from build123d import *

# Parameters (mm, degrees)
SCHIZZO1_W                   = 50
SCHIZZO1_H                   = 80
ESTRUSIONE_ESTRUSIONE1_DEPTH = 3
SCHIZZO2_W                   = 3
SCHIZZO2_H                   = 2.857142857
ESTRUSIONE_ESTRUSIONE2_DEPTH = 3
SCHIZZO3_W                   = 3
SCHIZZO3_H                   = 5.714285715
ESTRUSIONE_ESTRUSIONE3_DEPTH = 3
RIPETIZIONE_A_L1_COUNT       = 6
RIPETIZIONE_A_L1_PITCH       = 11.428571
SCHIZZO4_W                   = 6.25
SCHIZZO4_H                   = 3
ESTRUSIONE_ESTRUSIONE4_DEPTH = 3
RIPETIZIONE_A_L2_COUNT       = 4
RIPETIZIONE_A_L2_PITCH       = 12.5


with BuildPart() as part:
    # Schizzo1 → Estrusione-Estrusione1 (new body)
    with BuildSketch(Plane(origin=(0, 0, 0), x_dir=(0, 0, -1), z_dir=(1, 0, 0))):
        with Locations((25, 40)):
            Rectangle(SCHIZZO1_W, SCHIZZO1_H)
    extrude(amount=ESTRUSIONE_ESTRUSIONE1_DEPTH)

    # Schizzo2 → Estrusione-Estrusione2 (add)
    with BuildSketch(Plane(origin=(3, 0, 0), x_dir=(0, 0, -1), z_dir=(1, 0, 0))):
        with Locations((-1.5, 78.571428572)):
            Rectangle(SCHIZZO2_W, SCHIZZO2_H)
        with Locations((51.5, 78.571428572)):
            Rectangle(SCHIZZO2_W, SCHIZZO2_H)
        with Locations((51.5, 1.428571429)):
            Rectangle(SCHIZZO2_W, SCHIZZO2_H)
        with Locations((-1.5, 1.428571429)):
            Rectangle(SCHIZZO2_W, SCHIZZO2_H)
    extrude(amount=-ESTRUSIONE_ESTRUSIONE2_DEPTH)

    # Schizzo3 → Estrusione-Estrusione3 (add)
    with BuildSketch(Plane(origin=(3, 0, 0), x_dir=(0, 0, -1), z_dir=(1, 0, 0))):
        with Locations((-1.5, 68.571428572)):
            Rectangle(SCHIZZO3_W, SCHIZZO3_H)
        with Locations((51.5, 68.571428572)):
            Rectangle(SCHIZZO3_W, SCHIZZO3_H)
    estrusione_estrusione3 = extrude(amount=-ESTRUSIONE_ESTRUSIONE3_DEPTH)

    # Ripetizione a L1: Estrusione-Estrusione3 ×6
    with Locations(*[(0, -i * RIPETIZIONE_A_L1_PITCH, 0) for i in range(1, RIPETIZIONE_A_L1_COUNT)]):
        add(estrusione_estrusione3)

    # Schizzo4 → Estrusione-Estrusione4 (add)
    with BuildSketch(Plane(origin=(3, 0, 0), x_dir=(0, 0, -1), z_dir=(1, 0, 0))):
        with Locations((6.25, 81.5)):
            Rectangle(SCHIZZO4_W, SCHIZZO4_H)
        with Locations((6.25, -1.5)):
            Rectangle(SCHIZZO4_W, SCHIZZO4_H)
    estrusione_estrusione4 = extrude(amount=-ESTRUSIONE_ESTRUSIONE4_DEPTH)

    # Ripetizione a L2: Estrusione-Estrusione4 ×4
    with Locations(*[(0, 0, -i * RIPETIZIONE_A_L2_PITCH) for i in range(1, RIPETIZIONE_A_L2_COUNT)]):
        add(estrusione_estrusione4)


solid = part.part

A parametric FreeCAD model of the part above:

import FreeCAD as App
import Part
import Sketcher


def add_polygon(sketch, points):
    """Adds a closed chain of lines whose ends are joined by coincident constraints."""
    first, n = sketch.GeometryCount, len(points)
    for a, b in zip(points, points[1:] + points[:1]):
        sketch.addGeometry(Part.LineSegment(App.Vector(*a, 0), App.Vector(*b, 0)), False)
    for i in range(n):
        sketch.addConstraint(Sketcher.Constraint("Coincident", first + i, 2, first + (i + 1) % n, 1))

doc = App.newDocument("Part")
body = doc.addObject("PartDesign::Body", "Body")

sketch1 = body.newObject("Sketcher::SketchObject", "Sketch")
sketch1.AttachmentSupport = (doc.getObject("YZ_Plane"), [""])
sketch1.MapMode = "FlatFace"
add_polygon(sketch1, [(80, 0), (0, 0), (0, -50), (80, -50)])
sketch1.addConstraint(Sketcher.Constraint("Horizontal", 0))
sketch1.addConstraint(Sketcher.Constraint("Vertical", 1))
sketch1.addConstraint(Sketcher.Constraint("Horizontal", 2))
sketch1.addConstraint(Sketcher.Constraint("Vertical", 3))
sketch1.addConstraint(Sketcher.Constraint("Coincident", 0, 2, -1, 1))
sketch1.addConstraint(Sketcher.Constraint("DistanceX", 0, 2, 0, 1, 80.0))
sketch1.addConstraint(Sketcher.Constraint("DistanceY", 1, 2, 1, 1, 50.0))
pad1 = body.newObject("PartDesign::Pad", "Pad")
pad1.Profile = sketch1
pad1.Length = 3

sketch2 = body.newObject("Sketcher::SketchObject", "Sketch001")
sketch2.AttachmentSupport = (doc.getObject("YZ_Plane"), [""])
sketch2.MapMode = "FlatFace"
sketch2.AttachmentOffset = App.Placement(App.Vector(0, 0, 3), App.Rotation())
add_polygon(sketch2, [(80, 3), (77.1, 3), (77.1, 0), (80, 0)])
add_polygon(sketch2, [(80, -50), (77.1, -50), (77.1, -53), (80, -53)])
add_polygon(sketch2, [(2.9, -50), (0, -50), (0, -53), (2.9, -53)])
add_polygon(sketch2, [(2.9, 3), (0, 3), (0, 0), (2.9, 0)])
sketch2.addConstraint(Sketcher.Constraint("Horizontal", 0))
sketch2.addConstraint(Sketcher.Constraint("Vertical", 1))
sketch2.addConstraint(Sketcher.Constraint("Horizontal", 2))
sketch2.addConstraint(Sketcher.Constraint("Vertical", 3))
sketch2.addConstraint(Sketcher.Constraint("Horizontal", 4))
sketch2.addConstraint(Sketcher.Constraint("Vertical", 5))
sketch2.addConstraint(Sketcher.Constraint("Horizontal", 6))
sketch2.addConstraint(Sketcher.Constraint("Vertical", 7))
sketch2.addConstraint(Sketcher.Constraint("Horizontal", 8))
sketch2.addConstraint(Sketcher.Constraint("Vertical", 9))
sketch2.addConstraint(Sketcher.Constraint("Horizontal", 10))
sketch2.addConstraint(Sketcher.Constraint("Vertical", 11))
sketch2.addConstraint(Sketcher.Constraint("Horizontal", 12))
sketch2.addConstraint(Sketcher.Constraint("Vertical", 13))
sketch2.addConstraint(Sketcher.Constraint("Horizontal", 14))
sketch2.addConstraint(Sketcher.Constraint("Vertical", 15))
sketch2.addConstraint(Sketcher.Constraint("Coincident", 13, 2, -1, 1))
sketch2.addConstraint(Sketcher.Constraint("PointOnObject", 1, 2, -1))
sketch2.addConstraint(Sketcher.Constraint("PointOnObject", 8, 2, -2))
sketch2.addConstraint(Sketcher.Constraint("Horizontal", 7, 2, 8, 2))
sketch2.addConstraint(Sketcher.Constraint("Horizontal", 6, 2, 9, 2))
sketch2.addConstraint(Sketcher.Constraint("Horizontal", 3, 2, 12, 2))
sketch2.addConstraint(Sketcher.Constraint("Vertical", 1, 2, 4, 2))
sketch2.addConstraint(Sketcher.Constraint("Vertical", 3, 2, 6, 2))
sketch2.addConstraint(Sketcher.Constraint("Vertical", 11, 2, 14, 2))
sketch2.addConstraint(Sketcher.Constraint("Equal", 6, 8))
sketch2.addConstraint(Sketcher.Constraint("Equal", 3, 5))
sketch2.addConstraint(Sketcher.Constraint("DistanceY", 1, 2, 1, 1, 3.0))
sketch2.addConstraint(Sketcher.Constraint("DistanceX", -1, 1, 2, 2, 80.0))
sketch2.addConstraint(Sketcher.Constraint("DistanceY", 4, 2, -1, 1, 50.0))
sketch2.addConstraint(Sketcher.Constraint("DistanceX", 0, 2, 0, 1, 2.857143))
pad2 = body.newObject("PartDesign::Pad", "Pad001")
pad2.Profile = sketch2
pad2.Length = 3
pad2.Reversed = True

sketch3 = body.newObject("Sketcher::SketchObject", "Sketch002")
sketch3.AttachmentSupport = (doc.getObject("YZ_Plane"), [""])
sketch3.MapMode = "FlatFace"
sketch3.AttachmentOffset = App.Placement(App.Vector(0, 0, 3), App.Rotation())
add_polygon(sketch3, [(71.4, 3), (65.7, 3), (65.7, 0), (71.4, 0)])
add_polygon(sketch3, [(71.4, -50), (65.7, -50), (65.7, -53), (71.4, -53)])
sketch3.addConstraint(Sketcher.Constraint("Horizontal", 0))
sketch3.addConstraint(Sketcher.Constraint("Vertical", 1))
sketch3.addConstraint(Sketcher.Constraint("Horizontal", 2))
sketch3.addConstraint(Sketcher.Constraint("Vertical", 3))
sketch3.addConstraint(Sketcher.Constraint("Horizontal", 4))
sketch3.addConstraint(Sketcher.Constraint("Vertical", 5))
sketch3.addConstraint(Sketcher.Constraint("Horizontal", 6))
sketch3.addConstraint(Sketcher.Constraint("Vertical", 7))
sketch3.addConstraint(Sketcher.Constraint("PointOnObject", 1, 2, -1))
sketch3.addConstraint(Sketcher.Constraint("Vertical", 1, 2, 4, 2))
sketch3.addConstraint(Sketcher.Constraint("Vertical", 3, 2, 6, 2))
sketch3.addConstraint(Sketcher.Constraint("Equal", 3, 5))
sketch3.addConstraint(Sketcher.Constraint("DistanceY", 1, 2, 1, 1, 3.0))
sketch3.addConstraint(Sketcher.Constraint("DistanceY", 4, 2, -1, 1, 50.0))
sketch3.addConstraint(Sketcher.Constraint("DistanceX", 0, 2, 0, 1, 5.714286))
sketch3.addConstraint(Sketcher.Constraint("DistanceX", -1, 1, 2, 2, 71.428571))
pad3 = body.newObject("PartDesign::Pad", "Pad002")
pad3.Profile = sketch3
pad3.Length = 3
pad3.Reversed = True
doc.recompute()

linearpattern = body.newObject("PartDesign::LinearPattern", "LinearPattern")
linearpattern.Originals = [pad3]
linearpattern.Direction = (doc.getObject("Y_Axis"), [""])
linearpattern.Mode = "offset"
linearpattern.Offset = 11.428571
linearpattern.Occurrences = 6
linearpattern.Reversed = True
body.Tip = linearpattern

sketch4 = body.newObject("Sketcher::SketchObject", "Sketch003")
sketch4.AttachmentSupport = (doc.getObject("YZ_Plane"), [""])
sketch4.MapMode = "FlatFace"
sketch4.AttachmentOffset = App.Placement(App.Vector(0, 0, 3), App.Rotation())
add_polygon(sketch4, [(83, -3.1), (80, -3.1), (80, -9.4), (83, -9.4)])
add_polygon(sketch4, [(0, -3.1), (-3, -3.1), (-3, -9.4), (0, -9.4)])
sketch4.addConstraint(Sketcher.Constraint("Horizontal", 0))
sketch4.addConstraint(Sketcher.Constraint("Vertical", 1))
sketch4.addConstraint(Sketcher.Constraint("Horizontal", 2))
sketch4.addConstraint(Sketcher.Constraint("Vertical", 3))
sketch4.addConstraint(Sketcher.Constraint("Horizontal", 4))
sketch4.addConstraint(Sketcher.Constraint("Vertical", 5))
sketch4.addConstraint(Sketcher.Constraint("Horizontal", 6))
sketch4.addConstraint(Sketcher.Constraint("Vertical", 7))
sketch4.addConstraint(Sketcher.Constraint("PointOnObject", 6, 2, -2))
sketch4.addConstraint(Sketcher.Constraint("Horizontal", 3, 2, 4, 2))
sketch4.addConstraint(Sketcher.Constraint("Horizontal", 2, 2, 5, 2))
sketch4.addConstraint(Sketcher.Constraint("Equal", 2, 4))
sketch4.addConstraint(Sketcher.Constraint("DistanceX", 0, 2, 0, 1, 3.0))
sketch4.addConstraint(Sketcher.Constraint("DistanceX", -1, 1, 0, 2, 80.0))
sketch4.addConstraint(Sketcher.Constraint("DistanceY", 1, 2, 1, 1, 6.25))
sketch4.addConstraint(Sketcher.Constraint("DistanceY", 0, 2, -1, 1, 3.125))
pad4 = body.newObject("PartDesign::Pad", "Pad003")
pad4.Profile = sketch4
pad4.Length = 3
pad4.Reversed = True
doc.recompute()

linearpattern2 = body.newObject("PartDesign::LinearPattern", "LinearPattern001")
linearpattern2.Originals = [pad4]
linearpattern2.Direction = (doc.getObject("Z_Axis"), [""])
linearpattern2.Mode = "offset"
linearpattern2.Offset = 12.5
linearpattern2.Occurrences = 4
linearpattern2.Reversed = True
body.Tip = linearpattern2

doc.recompute()
